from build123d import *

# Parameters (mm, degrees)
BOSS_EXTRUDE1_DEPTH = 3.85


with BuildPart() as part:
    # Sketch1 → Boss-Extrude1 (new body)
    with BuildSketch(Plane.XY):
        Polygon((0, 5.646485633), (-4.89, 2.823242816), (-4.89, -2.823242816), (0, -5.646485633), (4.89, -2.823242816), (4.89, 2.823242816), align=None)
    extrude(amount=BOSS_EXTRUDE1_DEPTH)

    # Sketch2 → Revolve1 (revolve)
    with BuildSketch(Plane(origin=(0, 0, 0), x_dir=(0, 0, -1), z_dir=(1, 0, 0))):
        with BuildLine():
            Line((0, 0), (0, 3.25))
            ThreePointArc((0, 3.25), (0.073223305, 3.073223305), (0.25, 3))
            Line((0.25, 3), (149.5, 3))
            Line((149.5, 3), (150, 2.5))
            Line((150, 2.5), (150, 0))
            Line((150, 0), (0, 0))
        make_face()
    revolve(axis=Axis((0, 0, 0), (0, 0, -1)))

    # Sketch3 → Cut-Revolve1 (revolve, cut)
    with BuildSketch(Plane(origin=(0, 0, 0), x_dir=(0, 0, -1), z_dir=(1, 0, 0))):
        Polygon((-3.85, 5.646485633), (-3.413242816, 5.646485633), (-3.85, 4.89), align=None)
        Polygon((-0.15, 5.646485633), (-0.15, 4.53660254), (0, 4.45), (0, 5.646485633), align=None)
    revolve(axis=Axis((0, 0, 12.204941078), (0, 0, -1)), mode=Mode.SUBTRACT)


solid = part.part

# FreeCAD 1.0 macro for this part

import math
import FreeCAD as App
import Part
import Sketcher
Q = App.Units.Quantity

doc = App.newDocument("Part")
body = doc.addObject("PartDesign::Body", "Body")

# Sketch on XY plane
sketch1 = body.newObject("Sketcher::SketchObject", "Sketch")
sketch1.AttachmentSupport = (doc.getObject("XY_Plane"), [""])
sketch1.MapMode = "FlatFace"
sketch1.addGeometry([
    Part.LineSegment(App.Vector(0, 5.646486, 0), App.Vector(-4.89, 2.823243, 0)),  # 0
    Part.LineSegment(App.Vector(-4.89, 2.823243, 0), App.Vector(-4.89, -2.823243, 0)),  # 1
    Part.LineSegment(App.Vector(-4.89, -2.823243, 0), App.Vector(0, -5.646486, 0)),  # 2
    Part.LineSegment(App.Vector(0, -5.646486, 0), App.Vector(4.89, -2.823243, 0)),  # 3
    Part.LineSegment(App.Vector(4.89, -2.823243, 0), App.Vector(4.89, 2.823243, 0)),  # 4
    Part.LineSegment(App.Vector(4.89, 2.823243, 0), App.Vector(0, 5.646486, 0)),  # 5
], False)
sketch1.addConstraint([
    Sketcher.Constraint("Coincident", 0, 2, 1, 1),
    Sketcher.Constraint("Coincident", 1, 2, 2, 1),
    Sketcher.Constraint("Coincident", 2, 2, 3, 1),
    Sketcher.Constraint("Coincident", 3, 2, 4, 1),
    Sketcher.Constraint("Coincident", 4, 2, 5, 1),
    Sketcher.Constraint("Coincident", 5, 2, 0, 1),
    Sketcher.Constraint("Vertical", 1),
    Sketcher.Constraint("Vertical", 4),
    Sketcher.Constraint("Symmetric", 0, 2, 3, 2, -1, 1),
    Sketcher.Constraint("Symmetric", 2, 2, 5, 2, -1, 1),
    Sketcher.Constraint("PointOnObject", 2, 2, -2),
    Sketcher.Constraint("Parallel", 2, 5),
    Sketcher.Constraint("Horizontal", 1, 2, 3, 2),
    Sketcher.Constraint("Angle", 0, Q("-150 deg")),
    Sketcher.Constraint("DistanceX", 0, 2, -1, 1, 4.89),
    Sketcher.Constraint("DistanceY", 1, 2, 1, 1, 5.646486),
])
pad1 = body.newObject("PartDesign::Pad", "Pad")
pad1.Profile = sketch1
pad1.Length = 3.85

# Sketch on YZ plane
sketch2 = body.newObject("Sketcher::SketchObject", "Sketch001")
sketch2.AttachmentSupport = (doc.getObject("YZ_Plane"), [""])
sketch2.MapMode = "FlatFace"
sketch2.addGeometry([
    Part.LineSegment(App.Vector(3.25, 0, 0), App.Vector(0, 0, 0)),  # 0
    Part.LineSegment(App.Vector(0, 0, 0), App.Vector(0, -150, 0)),  # 1
    Part.LineSegment(App.Vector(0, -150, 0), App.Vector(2.5, -150, 0)),  # 2
    Part.LineSegment(App.Vector(2.5, -150, 0), App.Vector(3, -149.5, 0)),  # 3
    Part.LineSegment(App.Vector(3, -149.5, 0), App.Vector(3, -0.25, 0)),  # 4
    Part.ArcOfCircle(Part.Circle(App.Vector(3.25, -0.25, 0), App.Vector(0, 0, 1), 0.25), math.radians(90), math.radians(180)),  # 5
], False)
sketch2.addConstraint([
    Sketcher.Constraint("Coincident", 0, 2, 1, 1),
    Sketcher.Constraint("Coincident", 1, 2, 2, 1),
    Sketcher.Constraint("Coincident", 2, 2, 3, 1),
    Sketcher.Constraint("Coincident", 3, 2, 4, 1),
    Sketcher.Constraint("Tangent", 4, 2, 5, 2),
    Sketcher.Constraint("Tangent", 5, 1, 0, 1),
    Sketcher.Constraint("Horizontal", 0),
    Sketcher.Constraint("Vertical", 1),
    Sketcher.Constraint("Horizontal", 2),
    Sketcher.Constraint("Vertical", 4),
    Sketcher.Constraint("Coincident", 0, 2, -1, 1),
    Sketcher.Constraint("DistanceY", 1, 2, 1, 1, 150.0),
    Sketcher.Constraint("Angle", 3, Q("45 deg")),
    Sketcher.Constraint("Radius", 5, 0.25),
    Sketcher.Constraint("DistanceX", 2, 1, 2, 2, 2.5),
    Sketcher.Constraint("DistanceX", -1, 1, 3, 2, 3.0),
])
revolution = body.newObject("PartDesign::Revolution", "Revolution")
revolution.Profile = sketch2
revolution.ReferenceAxis = (sketch2, ["V_Axis"])
revolution.Angle = 360

# Sketch on YZ plane
sketch3 = body.newObject("Sketcher::SketchObject", "Sketch002")
sketch3.AttachmentSupport = (doc.getObject("YZ_Plane"), [""])
sketch3.MapMode = "FlatFace"
sketch3.addGeometry([
    Part.LineSegment(App.Vector(5.646486, 3.413243, 0), App.Vector(5.646486, 3.85, 0)),  # 0
    Part.LineSegment(App.Vector(5.646486, 3.85, 0), App.Vector(4.89, 3.85, 0)),  # 1
    Part.LineSegment(App.Vector(4.89, 3.85, 0), App.Vector(5.646486, 3.413243, 0)),  # 2
    Part.LineSegment(App.Vector(5.646486, 0.15, 0), App.Vector(4.536603, 0.15, 0)),  # 3
    Part.LineSegment(App.Vector(4.536603, 0.15, 0), App.Vector(4.45, 0, 0)),  # 4
    Part.LineSegment(App.Vector(4.45, 0, 0), App.Vector(5.646486, 0, 0)),  # 5
    Part.LineSegment(App.Vector(5.646486, 0, 0), App.Vector(5.646486, 0.15, 0)),  # 6
], False)
sketch3.addConstraint([
    Sketcher.Constraint("Coincident", 0, 2, 1, 1),
    Sketcher.Constraint("Coincident", 1, 2, 2, 1),
    Sketcher.Constraint("Coincident", 2, 2, 0, 1),
    Sketcher.Constraint("Coincident", 3, 2, 4, 1),
    Sketcher.Constraint("Coincident", 4, 2, 5, 1),
    Sketcher.Constraint("Coincident", 5, 2, 6, 1),
    Sketcher.Constraint("Coincident", 6, 2, 3, 1),
    Sketcher.Constraint("Vertical", 0),
    Sketcher.Constraint("Horizontal", 1),
    Sketcher.Constraint("Horizontal", 3),
    Sketcher.Constraint("Horizontal", 5),
    Sketcher.Constraint("Vertical", 6),
    Sketcher.Constraint("PointOnObject", 4, 2, -1),
    Sketcher.Constraint("Perpendicular", 2, 4),
    Sketcher.Constraint("Vertical", 2, 2, 5, 2),
    Sketcher.Constraint("Angle", 2, Q("-30 deg")),
    Sketcher.Constraint("DistanceY", 6, 1, 6, 2, 0.15),
    Sketcher.Constraint("DistanceY", 3, 2, 1, 2, 3.7),
    Sketcher.Constraint("DistanceX", -1, 1, 1, 2, 4.89),
    Sketcher.Constraint("DistanceX", -1, 1, 4, 2, 4.45),
    Sketcher.Constraint("DistanceX", 1, 2, 1, 1, 0.756486),
])
groove = body.newObject("PartDesign::Groove", "Groove")
groove.Profile = sketch3
groove.ReferenceAxis = (sketch3, ["V_Axis"])
groove.Angle = 360

doc.recompute()
